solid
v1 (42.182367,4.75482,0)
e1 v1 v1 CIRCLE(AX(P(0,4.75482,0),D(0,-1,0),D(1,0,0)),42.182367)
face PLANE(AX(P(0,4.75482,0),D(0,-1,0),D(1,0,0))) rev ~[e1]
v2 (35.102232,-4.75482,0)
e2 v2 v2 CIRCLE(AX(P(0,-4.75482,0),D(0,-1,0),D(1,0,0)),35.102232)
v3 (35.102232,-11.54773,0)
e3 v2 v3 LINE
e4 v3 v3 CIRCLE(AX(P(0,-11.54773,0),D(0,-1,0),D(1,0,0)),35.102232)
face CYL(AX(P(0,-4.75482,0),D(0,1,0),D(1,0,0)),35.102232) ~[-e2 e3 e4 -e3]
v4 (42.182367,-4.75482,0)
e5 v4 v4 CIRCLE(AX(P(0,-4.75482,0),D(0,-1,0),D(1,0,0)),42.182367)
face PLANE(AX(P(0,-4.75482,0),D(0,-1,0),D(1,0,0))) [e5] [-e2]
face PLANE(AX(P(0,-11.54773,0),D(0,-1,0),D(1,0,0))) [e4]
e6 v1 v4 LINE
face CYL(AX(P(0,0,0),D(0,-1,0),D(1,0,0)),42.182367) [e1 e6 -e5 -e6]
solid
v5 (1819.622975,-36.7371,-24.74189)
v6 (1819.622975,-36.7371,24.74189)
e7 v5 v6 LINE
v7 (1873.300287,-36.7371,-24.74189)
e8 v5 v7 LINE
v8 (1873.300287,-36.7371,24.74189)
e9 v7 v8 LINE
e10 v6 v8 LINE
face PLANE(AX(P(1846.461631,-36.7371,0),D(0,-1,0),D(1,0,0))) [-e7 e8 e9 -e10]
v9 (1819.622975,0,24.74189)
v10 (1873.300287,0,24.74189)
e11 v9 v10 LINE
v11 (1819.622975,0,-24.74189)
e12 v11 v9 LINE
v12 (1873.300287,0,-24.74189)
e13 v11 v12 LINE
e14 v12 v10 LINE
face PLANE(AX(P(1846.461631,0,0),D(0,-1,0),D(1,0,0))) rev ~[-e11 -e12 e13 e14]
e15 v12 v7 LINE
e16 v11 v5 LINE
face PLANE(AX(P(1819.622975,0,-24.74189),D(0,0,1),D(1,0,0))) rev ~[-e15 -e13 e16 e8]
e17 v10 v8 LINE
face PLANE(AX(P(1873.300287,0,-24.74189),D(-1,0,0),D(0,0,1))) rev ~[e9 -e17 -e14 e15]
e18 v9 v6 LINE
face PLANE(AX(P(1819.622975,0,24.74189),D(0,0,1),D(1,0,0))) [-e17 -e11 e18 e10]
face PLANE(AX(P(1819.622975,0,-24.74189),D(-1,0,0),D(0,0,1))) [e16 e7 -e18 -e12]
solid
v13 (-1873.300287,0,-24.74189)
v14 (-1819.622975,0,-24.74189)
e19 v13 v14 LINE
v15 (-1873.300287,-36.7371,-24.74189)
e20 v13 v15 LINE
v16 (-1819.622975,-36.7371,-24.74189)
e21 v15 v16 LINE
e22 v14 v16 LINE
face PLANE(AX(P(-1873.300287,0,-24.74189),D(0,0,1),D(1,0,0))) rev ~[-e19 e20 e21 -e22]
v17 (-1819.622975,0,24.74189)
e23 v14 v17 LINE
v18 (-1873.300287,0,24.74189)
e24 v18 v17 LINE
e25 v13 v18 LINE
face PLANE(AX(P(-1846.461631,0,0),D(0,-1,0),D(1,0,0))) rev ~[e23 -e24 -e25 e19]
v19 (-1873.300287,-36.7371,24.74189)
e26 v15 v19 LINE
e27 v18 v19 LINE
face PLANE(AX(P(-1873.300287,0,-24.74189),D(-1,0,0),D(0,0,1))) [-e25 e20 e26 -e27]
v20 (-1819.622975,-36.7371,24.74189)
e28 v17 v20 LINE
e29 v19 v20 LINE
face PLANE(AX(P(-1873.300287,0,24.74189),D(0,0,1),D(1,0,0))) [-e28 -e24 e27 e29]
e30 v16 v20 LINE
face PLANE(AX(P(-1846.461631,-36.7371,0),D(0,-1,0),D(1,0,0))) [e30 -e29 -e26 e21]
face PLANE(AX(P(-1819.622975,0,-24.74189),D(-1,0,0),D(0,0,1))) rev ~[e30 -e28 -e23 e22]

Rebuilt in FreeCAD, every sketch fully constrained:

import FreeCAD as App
import Part
import Sketcher
from FreeCAD import Vector
Q = App.Units.Quantity

doc = App.newDocument("Part")
body = doc.addObject("PartDesign::Body", "Body")

sketch1 = doc.addObject("Sketcher::SketchObject", "Sketch")
body.addObject(sketch1)
sketch1.AttachmentSupport = (doc.XZ_Plane, [""])
sketch1.MapMode = "FlatFace"
sketch1.addGeometry(Part.Circle(Vector(0, 0, 0), Vector(0, 0, 1), 42), False)
sketch1.addConstraint(Sketcher.Constraint("Coincident", 0, 3, -1, 1))
sketch1.addConstraint(Sketcher.Constraint("Diameter", 0, Q("84.364734 mm")))
pad1 = doc.addObject("PartDesign::Pad", "Pad")
body.addObject(pad1)
pad1.Profile = sketch1
pad1.Length = 9.50964
pad1.Midplane = True

sketch2 = doc.addObject("Sketcher::SketchObject", "Sketch001")
body.addObject(sketch2)
sketch2.AttachmentSupport = (doc.XZ_Plane, [""])
sketch2.MapMode = "FlatFace"
sketch2.AttachmentOffset = App.Placement(Vector(0, 0, 4.75482), App.Rotation())
sketch2.addGeometry(Part.Circle(Vector(0, 0, 0), Vector(0, 0, 1), 35), False)
sketch2.addConstraint(Sketcher.Constraint("Coincident", 0, 3, -1, 1))
sketch2.addConstraint(Sketcher.Constraint("Diameter", 0, Q("70.204464 mm")))
pad2 = doc.addObject("PartDesign::Pad", "Pad001")
body.addObject(pad2)
pad2.Profile = sketch2
pad2.Length = 6.79291
body2 = doc.addObject("PartDesign::Body", "Body001")
body2.AllowCompound = True

sketch3 = doc.addObject("Sketcher::SketchObject", "Sketch002")
body2.addObject(sketch3)
sketch3.AttachmentSupport = (doc.getObject("XZ_Plane001"), [""])
sketch3.MapMode = "FlatFace"
sketch3.addGeometry(Part.LineSegment(Vector(1820, 25, 0), Vector(1820, -25, 0)), False)
sketch3.addGeometry(Part.LineSegment(Vector(1820, -25, 0), Vector(1873, -25, 0)), False)
sketch3.addGeometry(Part.LineSegment(Vector(1873, -25, 0), Vector(1873, 25, 0)), False)
sketch3.addGeometry(Part.LineSegment(Vector(1873, 25, 0), Vector(1820, 25, 0)), False)
sketch3.addGeometry(Part.LineSegment(Vector(-1873, 25, 0), Vector(-1873, -25, 0)), False)
sketch3.addGeometry(Part.LineSegment(Vector(-1873, -25, 0), Vector(-1820, -25, 0)), False)
sketch3.addGeometry(Part.LineSegment(Vector(-1820, -25, 0), Vector(-1820, 25, 0)), False)
sketch3.addGeometry(Part.LineSegment(Vector(-1820, 25, 0), Vector(-1873, 25, 0)), False)
sketch3.addConstraint(Sketcher.Constraint("Coincident", 0, 2, 1, 1))
sketch3.addConstraint(Sketcher.Constraint("Coincident", 1, 2, 2, 1))
sketch3.addConstraint(Sketcher.Constraint("Coincident", 2, 2, 3, 1))
sketch3.addConstraint(Sketcher.Constraint("Coincident", 3, 2, 0, 1))
sketch3.addConstraint(Sketcher.Constraint("Coincident", 4, 2, 5, 1))
sketch3.addConstraint(Sketcher.Constraint("Coincident", 5, 2, 6, 1))
sketch3.addConstraint(Sketcher.Constraint("Coincident", 6, 2, 7, 1))
sketch3.addConstraint(Sketcher.Constraint("Coincident", 7, 2, 4, 1))
sketch3.addConstraint(Sketcher.Constraint("Vertical", 0))
sketch3.addConstraint(Sketcher.Constraint("Horizontal", 1))
sketch3.addConstraint(Sketcher.Constraint("Vertical", 2))
sketch3.addConstraint(Sketcher.Constraint("Horizontal", 3))
sketch3.addConstraint(Sketcher.Constraint("Vertical", 4))
sketch3.addConstraint(Sketcher.Constraint("Horizontal", 5))
sketch3.addConstraint(Sketcher.Constraint("Vertical", 6))
sketch3.addConstraint(Sketcher.Constraint("Horizontal", 7))
sketch3.addConstraint(Sketcher.Constraint("Symmetric", 2, 2, 4, 2, -1, 1))
sketch3.addConstraint(Sketcher.Constraint("Symmetric", 0, 2, 6, 2, -1, 1))
sketch3.addConstraint(Sketcher.Constraint("Horizontal", 1, 2, 4, 2))
sketch3.addConstraint(Sketcher.Constraint("DistanceY", 0, 2, 0, 1, Q("49.48378 mm")))
sketch3.addConstraint(Sketcher.Constraint("DistanceX", 1, 1, 1, 2, Q("53.677312 mm")))
sketch3.addConstraint(Sketcher.Constraint("DistanceX", 5, 2, 0, 2, Q("3639.24595 mm")))
pad3 = doc.addObject("PartDesign::Pad", "Pad002")
body2.addObject(pad3)
pad3.Profile = sketch3
pad3.Length = 36.7371

doc.recompute()
